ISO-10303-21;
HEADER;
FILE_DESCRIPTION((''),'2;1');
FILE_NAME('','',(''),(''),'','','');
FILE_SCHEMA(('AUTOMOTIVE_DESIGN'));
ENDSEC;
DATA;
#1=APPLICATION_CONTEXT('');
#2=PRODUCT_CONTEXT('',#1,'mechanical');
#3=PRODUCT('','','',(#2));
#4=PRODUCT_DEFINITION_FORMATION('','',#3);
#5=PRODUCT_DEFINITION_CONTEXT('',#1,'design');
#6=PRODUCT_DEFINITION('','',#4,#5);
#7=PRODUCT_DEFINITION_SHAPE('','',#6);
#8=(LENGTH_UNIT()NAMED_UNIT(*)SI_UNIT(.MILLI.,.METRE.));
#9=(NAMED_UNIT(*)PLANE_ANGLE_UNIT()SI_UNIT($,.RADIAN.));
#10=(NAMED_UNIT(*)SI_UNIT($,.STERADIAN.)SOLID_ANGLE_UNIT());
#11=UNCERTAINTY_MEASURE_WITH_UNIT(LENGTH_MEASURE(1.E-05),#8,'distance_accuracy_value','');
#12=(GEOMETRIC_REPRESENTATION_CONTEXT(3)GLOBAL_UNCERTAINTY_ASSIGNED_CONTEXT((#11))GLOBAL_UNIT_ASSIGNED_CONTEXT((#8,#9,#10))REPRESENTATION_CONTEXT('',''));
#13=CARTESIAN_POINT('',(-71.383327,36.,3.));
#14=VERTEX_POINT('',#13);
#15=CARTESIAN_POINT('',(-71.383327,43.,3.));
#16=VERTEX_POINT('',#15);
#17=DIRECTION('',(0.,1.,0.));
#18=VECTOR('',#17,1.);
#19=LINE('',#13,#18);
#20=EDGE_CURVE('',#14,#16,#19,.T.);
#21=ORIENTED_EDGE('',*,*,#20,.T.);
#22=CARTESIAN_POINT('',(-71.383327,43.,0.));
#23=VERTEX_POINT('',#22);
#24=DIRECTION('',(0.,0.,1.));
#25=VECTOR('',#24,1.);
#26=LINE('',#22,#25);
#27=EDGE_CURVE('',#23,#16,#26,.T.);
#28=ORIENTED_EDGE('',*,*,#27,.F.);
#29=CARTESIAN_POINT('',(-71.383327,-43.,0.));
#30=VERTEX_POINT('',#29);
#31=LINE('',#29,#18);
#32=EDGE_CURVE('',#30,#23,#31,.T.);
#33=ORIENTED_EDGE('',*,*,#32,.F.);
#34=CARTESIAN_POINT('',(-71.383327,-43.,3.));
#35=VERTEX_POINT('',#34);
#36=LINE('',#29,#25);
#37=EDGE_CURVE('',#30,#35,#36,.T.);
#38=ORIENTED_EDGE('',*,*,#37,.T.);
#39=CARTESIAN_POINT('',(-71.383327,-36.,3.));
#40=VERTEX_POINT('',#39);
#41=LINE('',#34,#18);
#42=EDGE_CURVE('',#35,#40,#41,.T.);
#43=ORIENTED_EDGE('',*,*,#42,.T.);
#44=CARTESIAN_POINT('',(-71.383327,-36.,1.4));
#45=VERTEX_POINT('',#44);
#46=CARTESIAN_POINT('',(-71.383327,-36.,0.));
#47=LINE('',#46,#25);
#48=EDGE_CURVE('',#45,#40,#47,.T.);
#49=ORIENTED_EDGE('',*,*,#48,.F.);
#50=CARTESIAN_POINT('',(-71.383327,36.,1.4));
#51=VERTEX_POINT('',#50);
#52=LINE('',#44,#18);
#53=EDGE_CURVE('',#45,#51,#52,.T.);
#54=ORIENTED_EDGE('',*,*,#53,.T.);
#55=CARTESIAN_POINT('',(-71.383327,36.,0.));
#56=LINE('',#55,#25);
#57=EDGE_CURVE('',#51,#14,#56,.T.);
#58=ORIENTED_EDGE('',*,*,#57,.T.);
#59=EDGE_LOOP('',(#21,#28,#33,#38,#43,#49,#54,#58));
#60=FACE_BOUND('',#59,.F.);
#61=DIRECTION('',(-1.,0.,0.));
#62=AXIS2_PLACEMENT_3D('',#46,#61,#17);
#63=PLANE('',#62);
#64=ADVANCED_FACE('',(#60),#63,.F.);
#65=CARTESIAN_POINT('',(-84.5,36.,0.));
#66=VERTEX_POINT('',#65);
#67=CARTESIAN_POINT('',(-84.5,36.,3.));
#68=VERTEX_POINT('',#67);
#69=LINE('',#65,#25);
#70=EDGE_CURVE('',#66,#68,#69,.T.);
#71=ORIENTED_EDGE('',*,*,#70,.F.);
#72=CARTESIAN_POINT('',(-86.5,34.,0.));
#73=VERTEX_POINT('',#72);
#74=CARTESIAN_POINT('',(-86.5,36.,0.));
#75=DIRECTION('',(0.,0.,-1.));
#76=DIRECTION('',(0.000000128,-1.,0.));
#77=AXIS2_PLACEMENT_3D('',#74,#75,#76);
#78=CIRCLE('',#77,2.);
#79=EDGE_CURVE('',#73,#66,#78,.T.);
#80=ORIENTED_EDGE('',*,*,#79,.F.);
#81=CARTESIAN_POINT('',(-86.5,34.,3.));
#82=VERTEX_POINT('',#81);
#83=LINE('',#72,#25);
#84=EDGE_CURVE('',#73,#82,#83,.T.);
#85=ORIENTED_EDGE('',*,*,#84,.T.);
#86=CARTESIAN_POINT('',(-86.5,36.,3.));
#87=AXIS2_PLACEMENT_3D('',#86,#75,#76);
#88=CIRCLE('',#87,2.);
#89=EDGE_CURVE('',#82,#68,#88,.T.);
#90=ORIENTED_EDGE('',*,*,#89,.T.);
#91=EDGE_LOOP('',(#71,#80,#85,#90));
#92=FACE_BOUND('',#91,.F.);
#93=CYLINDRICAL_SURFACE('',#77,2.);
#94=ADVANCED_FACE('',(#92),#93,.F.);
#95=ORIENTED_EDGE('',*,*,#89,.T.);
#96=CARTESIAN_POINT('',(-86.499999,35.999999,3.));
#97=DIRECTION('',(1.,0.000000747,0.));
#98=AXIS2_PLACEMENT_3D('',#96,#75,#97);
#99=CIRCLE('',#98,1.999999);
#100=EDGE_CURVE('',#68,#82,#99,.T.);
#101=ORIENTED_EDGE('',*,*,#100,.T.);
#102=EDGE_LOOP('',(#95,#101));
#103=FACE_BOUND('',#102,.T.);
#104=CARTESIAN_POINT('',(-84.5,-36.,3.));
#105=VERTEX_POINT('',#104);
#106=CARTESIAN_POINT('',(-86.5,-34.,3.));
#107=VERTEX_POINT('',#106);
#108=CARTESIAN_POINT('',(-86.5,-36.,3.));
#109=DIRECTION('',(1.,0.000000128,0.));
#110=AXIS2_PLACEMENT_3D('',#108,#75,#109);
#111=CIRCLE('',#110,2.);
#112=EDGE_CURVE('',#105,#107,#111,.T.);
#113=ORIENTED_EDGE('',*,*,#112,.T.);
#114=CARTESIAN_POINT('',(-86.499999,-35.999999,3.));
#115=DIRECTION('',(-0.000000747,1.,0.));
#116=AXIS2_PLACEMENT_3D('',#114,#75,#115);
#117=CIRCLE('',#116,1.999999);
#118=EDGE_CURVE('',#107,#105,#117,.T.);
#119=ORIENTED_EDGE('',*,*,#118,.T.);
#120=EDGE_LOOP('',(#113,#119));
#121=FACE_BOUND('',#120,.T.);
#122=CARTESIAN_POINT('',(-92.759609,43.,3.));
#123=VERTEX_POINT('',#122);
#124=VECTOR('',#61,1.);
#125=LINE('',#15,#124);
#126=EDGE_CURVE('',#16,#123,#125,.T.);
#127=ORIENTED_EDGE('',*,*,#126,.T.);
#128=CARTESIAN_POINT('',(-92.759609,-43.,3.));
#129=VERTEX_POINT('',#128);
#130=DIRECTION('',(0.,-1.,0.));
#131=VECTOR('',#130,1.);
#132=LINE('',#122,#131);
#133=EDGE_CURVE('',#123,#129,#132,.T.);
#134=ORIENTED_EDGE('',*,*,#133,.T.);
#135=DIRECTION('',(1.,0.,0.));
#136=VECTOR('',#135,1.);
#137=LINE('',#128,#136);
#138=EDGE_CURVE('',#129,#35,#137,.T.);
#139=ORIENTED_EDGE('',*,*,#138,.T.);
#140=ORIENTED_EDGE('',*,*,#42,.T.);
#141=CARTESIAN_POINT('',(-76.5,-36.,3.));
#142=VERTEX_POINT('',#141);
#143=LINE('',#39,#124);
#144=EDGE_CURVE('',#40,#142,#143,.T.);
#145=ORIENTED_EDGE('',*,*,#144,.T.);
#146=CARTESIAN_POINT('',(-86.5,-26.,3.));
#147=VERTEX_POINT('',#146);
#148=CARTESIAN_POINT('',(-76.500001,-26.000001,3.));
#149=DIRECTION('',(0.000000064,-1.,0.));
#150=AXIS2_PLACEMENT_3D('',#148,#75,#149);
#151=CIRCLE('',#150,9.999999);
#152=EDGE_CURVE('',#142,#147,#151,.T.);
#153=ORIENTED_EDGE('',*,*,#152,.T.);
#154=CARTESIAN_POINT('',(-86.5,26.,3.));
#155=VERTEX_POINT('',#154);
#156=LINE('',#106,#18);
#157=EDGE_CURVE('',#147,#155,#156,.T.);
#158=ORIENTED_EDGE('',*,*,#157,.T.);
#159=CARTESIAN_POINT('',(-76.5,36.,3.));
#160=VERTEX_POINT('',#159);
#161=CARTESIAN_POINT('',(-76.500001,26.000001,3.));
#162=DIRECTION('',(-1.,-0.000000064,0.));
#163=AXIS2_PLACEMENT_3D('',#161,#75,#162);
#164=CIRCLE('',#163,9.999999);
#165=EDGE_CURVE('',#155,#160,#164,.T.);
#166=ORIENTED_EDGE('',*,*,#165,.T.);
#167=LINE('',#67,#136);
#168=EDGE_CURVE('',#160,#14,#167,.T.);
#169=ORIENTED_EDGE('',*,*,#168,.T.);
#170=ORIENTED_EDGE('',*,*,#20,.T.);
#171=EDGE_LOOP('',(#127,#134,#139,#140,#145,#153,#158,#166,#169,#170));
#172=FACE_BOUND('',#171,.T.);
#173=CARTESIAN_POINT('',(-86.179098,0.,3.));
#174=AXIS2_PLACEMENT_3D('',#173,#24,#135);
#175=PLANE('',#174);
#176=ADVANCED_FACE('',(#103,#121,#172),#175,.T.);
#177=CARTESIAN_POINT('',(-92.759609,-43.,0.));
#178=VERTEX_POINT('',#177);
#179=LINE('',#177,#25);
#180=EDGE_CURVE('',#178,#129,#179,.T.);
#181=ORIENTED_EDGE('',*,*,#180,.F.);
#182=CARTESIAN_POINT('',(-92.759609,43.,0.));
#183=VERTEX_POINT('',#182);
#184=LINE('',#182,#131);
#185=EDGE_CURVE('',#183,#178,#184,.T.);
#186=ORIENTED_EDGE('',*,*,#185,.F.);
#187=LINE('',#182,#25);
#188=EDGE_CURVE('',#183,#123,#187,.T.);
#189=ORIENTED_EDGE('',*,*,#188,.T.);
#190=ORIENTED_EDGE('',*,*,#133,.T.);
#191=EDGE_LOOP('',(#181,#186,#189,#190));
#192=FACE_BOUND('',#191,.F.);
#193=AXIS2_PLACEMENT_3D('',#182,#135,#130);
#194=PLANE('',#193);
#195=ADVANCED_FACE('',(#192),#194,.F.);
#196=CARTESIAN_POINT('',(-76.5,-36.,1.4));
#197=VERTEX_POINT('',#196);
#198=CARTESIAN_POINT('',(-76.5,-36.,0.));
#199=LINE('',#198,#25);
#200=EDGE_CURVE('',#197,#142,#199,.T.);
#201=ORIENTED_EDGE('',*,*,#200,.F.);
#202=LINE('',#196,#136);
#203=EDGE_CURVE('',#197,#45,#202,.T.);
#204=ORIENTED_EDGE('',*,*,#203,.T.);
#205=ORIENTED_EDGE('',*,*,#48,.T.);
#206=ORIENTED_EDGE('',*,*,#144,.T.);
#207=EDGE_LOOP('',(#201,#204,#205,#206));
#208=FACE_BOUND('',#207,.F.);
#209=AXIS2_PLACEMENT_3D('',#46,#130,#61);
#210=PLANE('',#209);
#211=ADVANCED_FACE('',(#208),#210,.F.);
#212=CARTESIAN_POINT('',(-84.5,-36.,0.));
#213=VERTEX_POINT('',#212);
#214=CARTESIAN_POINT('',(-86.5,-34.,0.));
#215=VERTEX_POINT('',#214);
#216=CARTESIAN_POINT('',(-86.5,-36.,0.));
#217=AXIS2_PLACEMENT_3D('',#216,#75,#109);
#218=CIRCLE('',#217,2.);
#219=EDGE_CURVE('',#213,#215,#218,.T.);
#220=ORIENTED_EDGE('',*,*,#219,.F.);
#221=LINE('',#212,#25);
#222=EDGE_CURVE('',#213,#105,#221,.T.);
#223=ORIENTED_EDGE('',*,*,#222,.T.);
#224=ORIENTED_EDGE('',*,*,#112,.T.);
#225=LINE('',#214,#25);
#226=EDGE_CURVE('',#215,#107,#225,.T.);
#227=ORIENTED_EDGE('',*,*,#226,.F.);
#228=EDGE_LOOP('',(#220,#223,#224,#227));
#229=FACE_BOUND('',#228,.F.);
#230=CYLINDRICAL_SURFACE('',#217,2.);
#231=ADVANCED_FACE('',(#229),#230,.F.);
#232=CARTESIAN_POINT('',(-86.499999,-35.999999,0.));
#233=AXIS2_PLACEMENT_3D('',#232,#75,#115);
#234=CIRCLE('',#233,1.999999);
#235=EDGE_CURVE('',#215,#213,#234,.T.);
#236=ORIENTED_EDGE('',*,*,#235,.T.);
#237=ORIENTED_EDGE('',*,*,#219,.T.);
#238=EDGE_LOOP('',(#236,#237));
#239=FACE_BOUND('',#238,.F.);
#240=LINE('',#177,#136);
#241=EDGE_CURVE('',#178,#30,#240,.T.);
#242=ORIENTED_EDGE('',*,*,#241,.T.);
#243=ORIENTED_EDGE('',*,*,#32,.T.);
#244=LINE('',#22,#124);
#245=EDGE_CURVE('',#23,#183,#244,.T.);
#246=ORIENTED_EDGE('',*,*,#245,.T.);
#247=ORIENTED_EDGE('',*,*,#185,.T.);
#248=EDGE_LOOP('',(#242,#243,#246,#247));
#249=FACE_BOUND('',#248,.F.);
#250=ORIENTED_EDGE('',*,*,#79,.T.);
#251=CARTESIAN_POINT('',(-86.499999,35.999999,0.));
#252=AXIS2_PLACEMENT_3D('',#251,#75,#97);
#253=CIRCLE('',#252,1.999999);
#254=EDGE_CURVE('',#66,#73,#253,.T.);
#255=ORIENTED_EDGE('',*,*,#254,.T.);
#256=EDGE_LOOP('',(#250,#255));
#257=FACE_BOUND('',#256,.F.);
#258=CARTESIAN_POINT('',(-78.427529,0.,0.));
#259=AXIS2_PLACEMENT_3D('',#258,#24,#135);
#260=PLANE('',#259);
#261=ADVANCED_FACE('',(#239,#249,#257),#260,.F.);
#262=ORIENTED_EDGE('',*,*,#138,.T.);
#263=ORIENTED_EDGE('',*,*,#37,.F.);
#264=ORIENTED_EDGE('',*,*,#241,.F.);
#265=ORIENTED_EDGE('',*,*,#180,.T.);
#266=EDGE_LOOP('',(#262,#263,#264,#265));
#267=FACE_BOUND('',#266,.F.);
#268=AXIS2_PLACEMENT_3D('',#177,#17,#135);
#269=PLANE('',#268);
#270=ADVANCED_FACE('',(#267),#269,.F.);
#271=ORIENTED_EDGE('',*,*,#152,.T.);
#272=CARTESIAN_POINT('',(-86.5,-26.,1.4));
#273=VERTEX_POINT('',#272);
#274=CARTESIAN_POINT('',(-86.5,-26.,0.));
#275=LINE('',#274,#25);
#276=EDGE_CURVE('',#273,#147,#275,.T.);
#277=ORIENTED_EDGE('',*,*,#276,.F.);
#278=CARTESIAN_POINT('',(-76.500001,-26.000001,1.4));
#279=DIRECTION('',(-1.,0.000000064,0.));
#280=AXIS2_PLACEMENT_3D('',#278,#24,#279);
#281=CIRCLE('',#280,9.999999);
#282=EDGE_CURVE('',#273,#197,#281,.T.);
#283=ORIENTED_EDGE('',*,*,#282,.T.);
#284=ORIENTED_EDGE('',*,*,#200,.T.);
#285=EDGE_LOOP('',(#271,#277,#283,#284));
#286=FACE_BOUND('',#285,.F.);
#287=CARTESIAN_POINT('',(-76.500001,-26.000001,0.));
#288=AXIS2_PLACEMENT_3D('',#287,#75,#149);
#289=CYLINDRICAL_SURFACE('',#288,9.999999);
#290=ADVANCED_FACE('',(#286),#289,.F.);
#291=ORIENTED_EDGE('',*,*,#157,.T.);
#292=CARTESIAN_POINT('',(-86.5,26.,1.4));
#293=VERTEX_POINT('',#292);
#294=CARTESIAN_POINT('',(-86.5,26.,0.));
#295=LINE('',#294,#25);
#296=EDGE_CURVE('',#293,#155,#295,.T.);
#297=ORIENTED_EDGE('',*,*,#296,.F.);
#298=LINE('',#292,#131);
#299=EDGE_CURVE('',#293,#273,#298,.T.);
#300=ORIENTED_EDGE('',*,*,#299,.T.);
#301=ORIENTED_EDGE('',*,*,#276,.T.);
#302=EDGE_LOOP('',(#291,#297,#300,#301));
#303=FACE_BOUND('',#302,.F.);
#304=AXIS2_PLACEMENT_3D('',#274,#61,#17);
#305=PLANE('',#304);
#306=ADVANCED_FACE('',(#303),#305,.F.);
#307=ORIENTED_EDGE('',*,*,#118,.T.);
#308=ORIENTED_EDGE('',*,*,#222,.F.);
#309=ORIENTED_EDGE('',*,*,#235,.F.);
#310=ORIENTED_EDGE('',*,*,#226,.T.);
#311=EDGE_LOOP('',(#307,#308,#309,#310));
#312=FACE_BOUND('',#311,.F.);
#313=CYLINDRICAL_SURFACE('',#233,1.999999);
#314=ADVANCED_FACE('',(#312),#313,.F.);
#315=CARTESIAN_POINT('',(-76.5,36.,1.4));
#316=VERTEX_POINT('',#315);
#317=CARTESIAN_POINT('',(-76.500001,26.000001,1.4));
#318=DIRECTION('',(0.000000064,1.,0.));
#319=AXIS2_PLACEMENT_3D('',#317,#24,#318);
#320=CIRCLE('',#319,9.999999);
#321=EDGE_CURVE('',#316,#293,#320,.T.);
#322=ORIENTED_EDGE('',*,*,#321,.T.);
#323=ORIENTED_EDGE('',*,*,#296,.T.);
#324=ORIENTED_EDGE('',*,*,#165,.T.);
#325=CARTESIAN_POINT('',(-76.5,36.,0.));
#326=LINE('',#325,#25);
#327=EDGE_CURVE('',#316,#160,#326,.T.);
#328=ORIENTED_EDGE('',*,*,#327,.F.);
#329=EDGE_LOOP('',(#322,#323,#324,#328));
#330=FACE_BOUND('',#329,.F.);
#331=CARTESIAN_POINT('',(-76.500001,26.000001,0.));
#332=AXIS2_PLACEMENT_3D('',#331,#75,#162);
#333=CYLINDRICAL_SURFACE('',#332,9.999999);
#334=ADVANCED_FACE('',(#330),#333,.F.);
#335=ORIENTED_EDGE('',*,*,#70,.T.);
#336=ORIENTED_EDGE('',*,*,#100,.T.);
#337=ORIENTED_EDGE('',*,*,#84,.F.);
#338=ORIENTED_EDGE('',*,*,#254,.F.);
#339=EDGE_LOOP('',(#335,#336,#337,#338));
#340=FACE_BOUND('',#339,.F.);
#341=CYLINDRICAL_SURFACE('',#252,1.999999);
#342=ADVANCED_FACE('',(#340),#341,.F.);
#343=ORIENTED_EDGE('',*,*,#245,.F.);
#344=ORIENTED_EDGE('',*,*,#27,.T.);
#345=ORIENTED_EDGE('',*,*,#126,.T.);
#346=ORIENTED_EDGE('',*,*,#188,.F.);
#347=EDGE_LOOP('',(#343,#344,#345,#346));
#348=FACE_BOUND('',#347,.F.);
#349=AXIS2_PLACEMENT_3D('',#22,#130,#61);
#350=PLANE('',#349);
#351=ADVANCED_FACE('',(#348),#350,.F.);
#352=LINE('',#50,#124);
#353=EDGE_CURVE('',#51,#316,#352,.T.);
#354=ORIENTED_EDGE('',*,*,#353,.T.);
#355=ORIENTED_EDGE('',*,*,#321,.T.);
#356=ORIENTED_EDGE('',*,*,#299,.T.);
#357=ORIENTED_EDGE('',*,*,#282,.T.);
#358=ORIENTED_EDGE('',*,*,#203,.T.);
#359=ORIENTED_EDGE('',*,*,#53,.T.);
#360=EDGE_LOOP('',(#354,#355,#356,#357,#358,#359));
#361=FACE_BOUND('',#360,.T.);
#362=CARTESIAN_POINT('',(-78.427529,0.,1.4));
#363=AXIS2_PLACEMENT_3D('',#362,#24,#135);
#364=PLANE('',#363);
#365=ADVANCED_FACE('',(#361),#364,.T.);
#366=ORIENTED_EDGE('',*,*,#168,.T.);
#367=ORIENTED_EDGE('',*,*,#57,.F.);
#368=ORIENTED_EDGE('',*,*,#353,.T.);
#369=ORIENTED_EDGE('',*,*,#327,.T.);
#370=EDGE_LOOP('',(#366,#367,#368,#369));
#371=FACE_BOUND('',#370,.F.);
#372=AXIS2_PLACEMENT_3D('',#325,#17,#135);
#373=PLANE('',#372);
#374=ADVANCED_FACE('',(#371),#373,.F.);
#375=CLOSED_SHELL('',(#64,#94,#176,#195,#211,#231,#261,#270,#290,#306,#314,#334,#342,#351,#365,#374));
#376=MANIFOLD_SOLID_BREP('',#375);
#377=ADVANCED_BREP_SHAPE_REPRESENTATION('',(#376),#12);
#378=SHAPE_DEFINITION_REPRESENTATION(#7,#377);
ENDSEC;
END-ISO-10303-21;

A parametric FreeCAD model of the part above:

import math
import FreeCAD as App
import Part
import Sketcher
Q = App.Units.Quantity

doc = App.newDocument("Part")
body = doc.addObject("PartDesign::Body", "Body")

# Sketch on XY plane
sketch1 = doc.addObject("Sketcher::SketchObject", "Sketch")
body.addObject(sketch1)
sketch1.AttachmentSupport = (doc.XY_Plane, [""])
sketch1.MapMode = "FlatFace"
sketch1.addGeometry([
    Part.LineSegment(App.Vector(-71.4, 36, 0), App.Vector(-71.4, 43, 0)),  # 0
    Part.LineSegment(App.Vector(-71.4, 43, 0), App.Vector(-92.8, 43, 0)),  # 1
    Part.LineSegment(App.Vector(-92.8, 43, 0), App.Vector(-92.8, -43, 0)),  # 2
    Part.LineSegment(App.Vector(-92.8, -43, 0), App.Vector(-71.4, -43, 0)),  # 3
    Part.LineSegment(App.Vector(-71.4, -43, 0), App.Vector(-71.4, -36, 0)),  # 4
    Part.LineSegment(App.Vector(-71.4, -36, 0), App.Vector(-76.5, -36, 0)),  # 5
    Part.ArcOfCircle(Part.Circle(App.Vector(-76.5, -26, 0), App.Vector(0, 0, 1), 10), math.radians(180), math.radians(270)),  # 6
    Part.LineSegment(App.Vector(-86.5, -26, 0), App.Vector(-86.5, 26, 0)),  # 7
    Part.ArcOfCircle(Part.Circle(App.Vector(-76.5, 26, 0), App.Vector(0, 0, 1), 10), math.radians(90), math.radians(180)),  # 8
    Part.LineSegment(App.Vector(-76.5, 36, 0), App.Vector(-71.4, 36, 0)),  # 9
    Part.ArcOfCircle(Part.Circle(App.Vector(-86.5, -36, 0), App.Vector(0, 0, 1), 2), math.radians(90), math.radians(360)),  # 10
    Part.ArcOfCircle(Part.Circle(App.Vector(-86.5, -36, 0), App.Vector(0, 0, 1), 2), math.radians(0), math.radians(90)),  # 11
    Part.ArcOfCircle(Part.Circle(App.Vector(-86.5, 36, 0), App.Vector(0, 0, 1), 2), math.radians(0), math.radians(270)),  # 12
    Part.ArcOfCircle(Part.Circle(App.Vector(-86.5, 36, 0), App.Vector(0, 0, 1), 2), math.radians(-90), math.radians(0)),  # 13
], False)
sketch1.addConstraint([
    Sketcher.Constraint("Coincident", 0, 2, 1, 1),
    Sketcher.Constraint("Coincident", 1, 2, 2, 1),
    Sketcher.Constraint("Coincident", 2, 2, 3, 1),
    Sketcher.Constraint("Coincident", 3, 2, 4, 1),
    Sketcher.Constraint("Coincident", 4, 2, 5, 1),
    Sketcher.Constraint("Tangent", 5, 2, 6, 2),
    Sketcher.Constraint("Tangent", 6, 1, 7, 1),
    Sketcher.Constraint("Tangent", 7, 2, 8, 2),
    Sketcher.Constraint("Tangent", 8, 1, 9, 1),
    Sketcher.Constraint("Coincident", 9, 2, 0, 1),
    Sketcher.Constraint("Tangent", 10, 1, 11, 2),
    Sketcher.Constraint("Coincident", 11, 1, 10, 2),
    Sketcher.Constraint("Tangent", 12, 1, 13, 2),
    Sketcher.Constraint("Coincident", 13, 1, 12, 2),
    Sketcher.Constraint("Vertical", 0),
    Sketcher.Constraint("Horizontal", 1),
    Sketcher.Constraint("Vertical", 2),
    Sketcher.Constraint("Horizontal", 3),
    Sketcher.Constraint("Vertical", 4),
    Sketcher.Constraint("Horizontal", 5),
    Sketcher.Constraint("Vertical", 7),
    Sketcher.Constraint("Horizontal", 9),
    Sketcher.Constraint("Equal", 6, 8),
    Sketcher.Constraint("Equal", 11, 12),
    Sketcher.Constraint("Symmetric", 10, 3, 12, 3, -1),
    Sketcher.Constraint("Symmetric", 0, 2, 3, 2, -1),
    Sketcher.Constraint("Horizontal", 11, 3, 4, 2),
    Sketcher.Constraint("Horizontal", 13, 3, 8, 1),
    Sketcher.Constraint("Horizontal", 5, 2, 11, 1),
    Sketcher.Constraint("Horizontal", 9, 2, 12, 1),
    Sketcher.Constraint("Vertical", 13, 3, 6, 1),
    Sketcher.Constraint("Vertical", 7, 2, 10, 1),
    Sketcher.Constraint("Vertical", 10, 1, 13, 1),
    Sketcher.Constraint("Radius", 6, Q("9.999999 mm")),
    Sketcher.Constraint("Radius", 10, Q("2 mm")),
    Sketcher.Constraint("DistanceY", 0, 1, 0, 2, Q("7 mm")),
    Sketcher.Constraint("DistanceY", 2, 2, 2, 1, Q("86 mm")),
    Sketcher.Constraint("DistanceX", 6, 3, -1, 1, Q("76.500001 mm")),
    Sketcher.Constraint("DistanceX", 1, 2, 1, 1, Q("21.376282 mm")),
    Sketcher.Constraint("DistanceX", 5, 2, 5, 1, Q("5.116673 mm")),
])
pad1 = doc.addObject("PartDesign::Pad", "Pad")
body.addObject(pad1)
pad1.Profile = sketch1
pad1.Length = 3

# Sketch on XY plane
sketch2 = doc.addObject("Sketcher::SketchObject", "Sketch001")
body.addObject(sketch2)
sketch2.AttachmentSupport = (doc.XY_Plane, [""])
sketch2.MapMode = "FlatFace"
sketch2.addGeometry([
    Part.LineSegment(App.Vector(-71, -36, 0), App.Vector(-71, 36, 0)),  # 0
    Part.LineSegment(App.Vector(-71, 36, 0), App.Vector(-76, 36, 0)),  # 1
    Part.ArcOfCircle(Part.Circle(App.Vector(-77, 26, 0), App.Vector(0, 0, 1), 10), math.radians(90), math.radians(180)),  # 2
    Part.LineSegment(App.Vector(-86, 26, 0), App.Vector(-86, -26, 0)),  # 3
    Part.ArcOfCircle(Part.Circle(App.Vector(-77, -26, 0), App.Vector(0, 0, 1), 10), math.radians(180), math.radians(270)),  # 4
    Part.LineSegment(App.Vector(-76, -36, 0), App.Vector(-71, -36, 0)),  # 5
], False)
sketch2.addConstraint([
    Sketcher.Constraint("Coincident", 0, 2, 1, 1),
    Sketcher.Constraint("Tangent", 1, 2, 2, 1),
    Sketcher.Constraint("Tangent", 2, 2, 3, 1),
    Sketcher.Constraint("Tangent", 3, 2, 4, 1),
    Sketcher.Constraint("Tangent", 4, 2, 5, 1),
    Sketcher.Constraint("Coincident", 5, 2, 0, 1),
    Sketcher.Constraint("Vertical", 0),
    Sketcher.Constraint("Horizontal", 1),
    Sketcher.Constraint("Vertical", 3),
    Sketcher.Constraint("Horizontal", 5),
    Sketcher.Constraint("Equal", 2, 4),
    Sketcher.Constraint("Radius", 2, Q("9.999999 mm")),
    Sketcher.Constraint("DistanceY", 0, 1, 0, 2, Q("72 mm")),
    Sketcher.Constraint("DistanceY", -1, 1, 2, 3, Q("26.000001 mm")),
    Sketcher.Constraint("DistanceX", 2, 3, -1, 1, Q("76.500001 mm")),
    Sketcher.Constraint("DistanceX", 1, 2, 1, 1, Q("5.116673 mm")),
])
pad2 = doc.addObject("PartDesign::Pad", "Pad001")
body.addObject(pad2)
pad2.Profile = sketch2
pad2.Length = 1.4

doc.recompute()
